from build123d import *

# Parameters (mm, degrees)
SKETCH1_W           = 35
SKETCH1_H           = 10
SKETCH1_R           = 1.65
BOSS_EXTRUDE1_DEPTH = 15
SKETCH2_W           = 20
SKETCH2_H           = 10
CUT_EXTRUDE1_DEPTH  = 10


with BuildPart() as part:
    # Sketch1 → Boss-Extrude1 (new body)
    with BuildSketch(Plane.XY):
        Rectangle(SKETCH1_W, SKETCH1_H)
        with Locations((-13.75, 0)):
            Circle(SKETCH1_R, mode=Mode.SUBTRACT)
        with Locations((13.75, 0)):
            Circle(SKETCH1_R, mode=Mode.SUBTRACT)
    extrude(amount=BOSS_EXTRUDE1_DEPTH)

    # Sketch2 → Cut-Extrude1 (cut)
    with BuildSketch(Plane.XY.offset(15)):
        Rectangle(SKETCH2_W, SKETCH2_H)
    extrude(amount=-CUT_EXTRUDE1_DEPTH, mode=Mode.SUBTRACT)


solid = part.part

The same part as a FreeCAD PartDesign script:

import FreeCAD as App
import Part
import Sketcher

V = App.Vector
Q = App.Units.Quantity


def add_polygon(sketch, points):
    """Adds a closed chain of lines whose ends are joined by coincident constraints."""
    first, n = sketch.GeometryCount, len(points)
    for a, b in zip(points, points[1:] + points[:1]):
        sketch.addGeometry(Part.LineSegment(App.Vector(*a, 0), App.Vector(*b, 0)), False)
    for i in range(n):
        sketch.addConstraint(Sketcher.Constraint("Coincident", first + i, 2, first + (i + 1) % n, 1))

doc = App.newDocument("Part")
body = doc.addObject("PartDesign::Body", "Body")

# Sketch on XY plane
sketch1 = doc.addObject("Sketcher::SketchObject", "Sketch")
body.addObject(sketch1)
sketch1.AttachmentSupport = (doc.XY_Plane, [""])
sketch1.MapMode = "FlatFace"
add_polygon(sketch1, [(-17.5, 5), (-17.5, -5), (17.5, -5), (17.5, 5)])  # lines 0-3
sketch1.addGeometry(Part.Circle(V(-13.8, 0, 0), V(0, 0, 1), 1.6), False)  # 4
sketch1.addGeometry(Part.Circle(V(13.8, 0, 0), V(0, 0, 1), 1.6), False)  # 5
sketch1.addConstraint([
    Sketcher.Constraint("Vertical", 0),
    Sketcher.Constraint("Horizontal", 1),
    Sketcher.Constraint("Vertical", 2),
    Sketcher.Constraint("Horizontal", 3),
    Sketcher.Constraint("Equal", 4, 5),
    Sketcher.Constraint("Symmetric", 4, 3, 5, 3, -1, 1),
    Sketcher.Constraint("Symmetric", 0, 2, 2, 2, -1, 1),
    Sketcher.Constraint("PointOnObject", 4, 3, -1),
    Sketcher.Constraint("Diameter", 4, Q("3.3 mm")),
    Sketcher.Constraint("DistanceX", 1, 1, 1, 2, Q("35 mm")),
    Sketcher.Constraint("DistanceY", 0, 2, 0, 1, Q("10 mm")),
    Sketcher.Constraint("DistanceX", 4, 3, 5, 3, Q("27.5 mm")),
])
pad1 = doc.addObject("PartDesign::Pad", "Pad")
body.addObject(pad1)
pad1.Profile = sketch1
pad1.Length = 15

# Sketch on XY plane
sketch2 = doc.addObject("Sketcher::SketchObject", "Sketch001")
body.addObject(sketch2)
sketch2.AttachmentSupport = (doc.XY_Plane, [""])
sketch2.MapMode = "FlatFace"
sketch2.AttachmentOffset = App.Placement(V(0, 0, 15), App.Rotation())
add_polygon(sketch2, [(-10, 5), (-10, -5), (10, -5), (10, 5)])  # lines 0-3
sketch2.addConstraint([
    Sketcher.Constraint("Vertical", 0),
    Sketcher.Constraint("Horizontal", 1),
    Sketcher.Constraint("Vertical", 2),
    Sketcher.Constraint("Horizontal", 3),
    Sketcher.Constraint("Symmetric", 0, 2, 2, 2, -1, 1),
    Sketcher.Constraint("DistanceX", 1, 1, 1, 2, Q("20 mm")),
    Sketcher.Constraint("DistanceY", 0, 2, 0, 1, Q("10 mm")),
])
pocket1 = doc.addObject("PartDesign::Pocket", "Pocket")
body.addObject(pocket1)
pocket1.Profile = sketch2
pocket1.Length = 10

doc.recompute()
